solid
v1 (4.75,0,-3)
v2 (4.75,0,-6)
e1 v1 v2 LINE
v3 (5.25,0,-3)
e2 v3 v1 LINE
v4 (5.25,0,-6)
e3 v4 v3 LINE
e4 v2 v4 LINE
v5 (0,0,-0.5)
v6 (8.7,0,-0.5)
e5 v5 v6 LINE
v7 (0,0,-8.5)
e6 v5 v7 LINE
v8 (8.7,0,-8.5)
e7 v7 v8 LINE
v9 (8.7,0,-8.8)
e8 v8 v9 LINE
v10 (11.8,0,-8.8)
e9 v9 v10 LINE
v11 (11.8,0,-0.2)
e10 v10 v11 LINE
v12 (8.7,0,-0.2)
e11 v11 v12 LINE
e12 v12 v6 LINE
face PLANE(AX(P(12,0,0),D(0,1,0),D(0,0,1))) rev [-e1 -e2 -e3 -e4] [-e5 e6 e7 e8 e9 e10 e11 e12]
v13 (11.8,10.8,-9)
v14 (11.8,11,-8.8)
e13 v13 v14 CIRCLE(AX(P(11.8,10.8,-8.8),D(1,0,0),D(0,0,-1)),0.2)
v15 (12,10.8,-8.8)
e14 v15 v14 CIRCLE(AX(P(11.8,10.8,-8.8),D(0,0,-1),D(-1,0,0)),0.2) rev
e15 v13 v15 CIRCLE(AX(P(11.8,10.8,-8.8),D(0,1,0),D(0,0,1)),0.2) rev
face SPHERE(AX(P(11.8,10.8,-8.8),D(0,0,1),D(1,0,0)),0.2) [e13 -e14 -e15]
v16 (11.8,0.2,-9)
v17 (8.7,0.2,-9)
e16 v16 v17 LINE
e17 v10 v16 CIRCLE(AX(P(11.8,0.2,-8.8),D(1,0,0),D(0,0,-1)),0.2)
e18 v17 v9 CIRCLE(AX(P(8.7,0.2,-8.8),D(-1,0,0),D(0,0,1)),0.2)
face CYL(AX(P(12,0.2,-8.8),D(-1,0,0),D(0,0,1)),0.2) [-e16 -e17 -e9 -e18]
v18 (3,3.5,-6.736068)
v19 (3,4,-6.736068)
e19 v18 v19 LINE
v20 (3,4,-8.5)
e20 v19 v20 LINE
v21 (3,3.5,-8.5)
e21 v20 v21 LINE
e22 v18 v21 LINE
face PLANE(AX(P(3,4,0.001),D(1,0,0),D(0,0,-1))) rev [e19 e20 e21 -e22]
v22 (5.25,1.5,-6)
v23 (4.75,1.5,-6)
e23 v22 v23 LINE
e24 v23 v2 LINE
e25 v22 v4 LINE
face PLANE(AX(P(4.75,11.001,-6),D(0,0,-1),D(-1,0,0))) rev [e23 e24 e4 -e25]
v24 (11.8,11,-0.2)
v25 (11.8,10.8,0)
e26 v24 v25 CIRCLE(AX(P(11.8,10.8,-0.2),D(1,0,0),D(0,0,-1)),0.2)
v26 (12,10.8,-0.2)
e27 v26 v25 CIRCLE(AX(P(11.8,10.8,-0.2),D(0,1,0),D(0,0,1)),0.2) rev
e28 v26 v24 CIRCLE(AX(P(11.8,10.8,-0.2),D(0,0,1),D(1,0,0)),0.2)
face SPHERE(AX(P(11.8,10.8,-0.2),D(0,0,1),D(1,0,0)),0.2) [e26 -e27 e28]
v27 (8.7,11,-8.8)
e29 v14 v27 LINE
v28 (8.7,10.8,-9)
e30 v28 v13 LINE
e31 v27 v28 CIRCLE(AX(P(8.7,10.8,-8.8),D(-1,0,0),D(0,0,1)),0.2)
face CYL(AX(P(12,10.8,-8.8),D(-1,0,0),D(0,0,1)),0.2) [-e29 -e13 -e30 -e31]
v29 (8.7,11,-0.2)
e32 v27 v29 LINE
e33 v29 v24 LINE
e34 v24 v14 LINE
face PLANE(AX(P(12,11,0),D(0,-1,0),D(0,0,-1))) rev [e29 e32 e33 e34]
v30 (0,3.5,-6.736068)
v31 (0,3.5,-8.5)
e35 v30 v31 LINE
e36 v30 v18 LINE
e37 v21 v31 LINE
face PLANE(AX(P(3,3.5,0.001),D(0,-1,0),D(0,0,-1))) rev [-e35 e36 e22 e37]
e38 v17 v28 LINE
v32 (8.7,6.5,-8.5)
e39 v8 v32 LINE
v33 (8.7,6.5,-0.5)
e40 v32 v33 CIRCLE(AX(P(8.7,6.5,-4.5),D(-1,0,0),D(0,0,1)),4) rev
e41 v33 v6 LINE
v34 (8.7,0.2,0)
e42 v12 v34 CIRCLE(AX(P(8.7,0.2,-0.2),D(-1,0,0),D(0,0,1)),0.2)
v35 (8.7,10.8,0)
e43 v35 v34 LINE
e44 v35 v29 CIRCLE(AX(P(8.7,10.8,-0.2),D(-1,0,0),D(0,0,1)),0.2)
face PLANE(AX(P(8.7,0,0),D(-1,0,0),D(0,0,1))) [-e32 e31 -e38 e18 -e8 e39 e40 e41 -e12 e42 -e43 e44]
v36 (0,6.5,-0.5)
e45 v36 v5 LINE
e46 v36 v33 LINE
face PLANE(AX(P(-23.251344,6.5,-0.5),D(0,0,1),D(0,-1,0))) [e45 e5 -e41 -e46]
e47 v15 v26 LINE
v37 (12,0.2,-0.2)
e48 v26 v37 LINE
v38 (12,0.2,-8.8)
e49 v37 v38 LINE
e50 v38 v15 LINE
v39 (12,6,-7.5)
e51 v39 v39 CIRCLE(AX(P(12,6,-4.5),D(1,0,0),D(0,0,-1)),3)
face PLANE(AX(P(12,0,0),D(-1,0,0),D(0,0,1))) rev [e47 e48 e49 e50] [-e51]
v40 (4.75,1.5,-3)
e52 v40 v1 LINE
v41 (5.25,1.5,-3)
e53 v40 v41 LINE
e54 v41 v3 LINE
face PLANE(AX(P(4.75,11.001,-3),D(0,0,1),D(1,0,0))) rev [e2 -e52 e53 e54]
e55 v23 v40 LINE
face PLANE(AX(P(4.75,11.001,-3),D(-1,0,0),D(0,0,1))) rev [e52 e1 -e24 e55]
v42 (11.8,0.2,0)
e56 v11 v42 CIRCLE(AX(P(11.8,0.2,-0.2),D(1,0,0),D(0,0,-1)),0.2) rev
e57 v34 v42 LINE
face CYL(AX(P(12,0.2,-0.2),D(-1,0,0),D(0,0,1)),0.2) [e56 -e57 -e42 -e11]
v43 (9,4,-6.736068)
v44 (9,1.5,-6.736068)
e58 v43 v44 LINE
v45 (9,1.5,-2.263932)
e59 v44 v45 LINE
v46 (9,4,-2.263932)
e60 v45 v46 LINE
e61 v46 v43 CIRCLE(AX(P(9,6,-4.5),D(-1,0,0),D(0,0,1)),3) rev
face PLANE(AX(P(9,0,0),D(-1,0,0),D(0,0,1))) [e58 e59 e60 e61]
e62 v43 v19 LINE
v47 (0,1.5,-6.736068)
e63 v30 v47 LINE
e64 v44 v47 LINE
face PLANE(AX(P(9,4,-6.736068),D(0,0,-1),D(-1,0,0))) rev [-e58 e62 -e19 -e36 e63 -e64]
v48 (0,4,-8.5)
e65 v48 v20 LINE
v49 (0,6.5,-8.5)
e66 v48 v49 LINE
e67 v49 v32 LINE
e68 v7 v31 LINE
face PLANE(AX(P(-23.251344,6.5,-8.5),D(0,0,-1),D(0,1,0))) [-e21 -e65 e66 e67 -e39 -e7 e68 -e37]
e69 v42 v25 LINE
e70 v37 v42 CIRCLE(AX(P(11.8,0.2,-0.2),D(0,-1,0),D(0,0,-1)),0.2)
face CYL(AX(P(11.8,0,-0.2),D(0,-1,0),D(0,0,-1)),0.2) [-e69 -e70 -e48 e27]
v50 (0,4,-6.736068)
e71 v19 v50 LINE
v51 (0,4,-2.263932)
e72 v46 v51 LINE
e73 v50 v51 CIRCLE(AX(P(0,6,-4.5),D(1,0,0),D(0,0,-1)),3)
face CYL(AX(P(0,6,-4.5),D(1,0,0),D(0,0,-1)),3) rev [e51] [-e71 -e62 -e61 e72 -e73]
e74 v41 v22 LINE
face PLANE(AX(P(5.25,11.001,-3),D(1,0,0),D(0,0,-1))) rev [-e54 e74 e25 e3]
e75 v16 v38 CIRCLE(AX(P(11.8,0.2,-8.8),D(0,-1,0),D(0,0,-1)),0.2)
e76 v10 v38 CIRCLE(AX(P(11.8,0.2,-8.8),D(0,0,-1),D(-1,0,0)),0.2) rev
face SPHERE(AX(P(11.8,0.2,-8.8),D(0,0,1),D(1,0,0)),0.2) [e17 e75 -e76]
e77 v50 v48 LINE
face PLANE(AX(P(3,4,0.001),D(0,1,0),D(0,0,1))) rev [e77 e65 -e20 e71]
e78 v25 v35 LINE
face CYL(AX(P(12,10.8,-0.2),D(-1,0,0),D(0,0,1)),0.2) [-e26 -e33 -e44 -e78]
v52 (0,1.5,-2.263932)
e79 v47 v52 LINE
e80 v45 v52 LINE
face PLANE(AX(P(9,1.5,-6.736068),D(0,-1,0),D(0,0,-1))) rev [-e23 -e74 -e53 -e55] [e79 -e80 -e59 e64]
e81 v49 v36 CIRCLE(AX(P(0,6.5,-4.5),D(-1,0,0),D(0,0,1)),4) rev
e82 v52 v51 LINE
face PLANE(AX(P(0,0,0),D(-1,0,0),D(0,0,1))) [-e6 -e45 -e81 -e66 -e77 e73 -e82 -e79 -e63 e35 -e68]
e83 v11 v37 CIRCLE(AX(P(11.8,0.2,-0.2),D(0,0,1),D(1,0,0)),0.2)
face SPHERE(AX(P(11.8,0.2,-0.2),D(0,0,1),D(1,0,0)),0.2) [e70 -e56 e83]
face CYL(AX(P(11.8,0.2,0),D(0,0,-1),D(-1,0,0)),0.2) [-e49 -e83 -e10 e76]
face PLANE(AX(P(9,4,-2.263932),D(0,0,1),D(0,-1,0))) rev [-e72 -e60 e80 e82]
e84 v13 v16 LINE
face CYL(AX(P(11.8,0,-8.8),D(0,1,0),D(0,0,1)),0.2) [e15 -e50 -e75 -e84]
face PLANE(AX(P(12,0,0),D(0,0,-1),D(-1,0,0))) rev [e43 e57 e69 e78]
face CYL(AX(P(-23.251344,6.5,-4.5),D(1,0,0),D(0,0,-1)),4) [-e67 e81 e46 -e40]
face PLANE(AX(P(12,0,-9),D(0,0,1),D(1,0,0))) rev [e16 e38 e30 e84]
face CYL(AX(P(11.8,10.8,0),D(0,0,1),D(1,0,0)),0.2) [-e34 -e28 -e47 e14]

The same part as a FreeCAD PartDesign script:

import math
import FreeCAD as App
import Part
import Sketcher

V = App.Vector


def edges_at(feature, points):
    """Names of the edges that pass closest to the given points."""
    edges = feature.Shape.Edges
    near = lambda p: min(range(len(edges)), key=lambda i: edges[i].distToShape(Part.Vertex(*p))[0])
    return sorted({f"Edge{near(p) + 1}" for p in points})


def add_polygon(sketch, points):
    """Adds a closed chain of lines whose ends are joined by coincident constraints."""
    first, n = sketch.GeometryCount, len(points)
    for a, b in zip(points, points[1:] + points[:1]):
        sketch.addGeometry(Part.LineSegment(App.Vector(*a, 0), App.Vector(*b, 0)), False)
    for i in range(n):
        sketch.addConstraint(Sketcher.Constraint("Coincident", first + i, 2, first + (i + 1) % n, 1))

doc = App.newDocument("Part")
body = doc.addObject("PartDesign::Body", "Body")

# Sketch on YZ plane
sketch1 = doc.addObject("Sketcher::SketchObject", "Sketch")
body.addObject(sketch1)
sketch1.AttachmentSupport = (doc.YZ_Plane, [""])
sketch1.MapMode = "FlatFace"
add_polygon(sketch1, [(11, 0), (0, 0), (0, -9), (11, -9)])  # lines 0-3
sketch1.addConstraint(Sketcher.Constraint("Horizontal", 0))
sketch1.addConstraint(Sketcher.Constraint("Vertical", 1))
sketch1.addConstraint(Sketcher.Constraint("Horizontal", 2))
sketch1.addConstraint(Sketcher.Constraint("Vertical", 3))
sketch1.addConstraint(Sketcher.Constraint("Coincident", 0, 2, -1, 1))
sketch1.addConstraint(Sketcher.Constraint("DistanceX", 0, 2, 0, 1, 11.0))
sketch1.addConstraint(Sketcher.Constraint("DistanceY", 1, 2, 1, 1, 9.0))
pad1 = doc.addObject("PartDesign::Pad", "Pad")
body.addObject(pad1)
pad1.Profile = sketch1
pad1.Length = 12

# Sketch on YZ plane
sketch2 = doc.addObject("Sketcher::SketchObject", "Sketch001")
body.addObject(sketch2)
sketch2.AttachmentSupport = (doc.YZ_Plane, [""])
sketch2.MapMode = "FlatFace"
sketch2.addGeometry(Part.LineSegment(V(0, -8.5, 0), V(6.5, -8.5, 0)), False)
sketch2.addGeometry(Part.ArcOfCircle(Part.Circle(V(6.5, -4.5, 0), V(0, 0, 1), 4), math.radians(-90), math.radians(90)), False)
sketch2.addGeometry(Part.LineSegment(V(6.5, -0.5, 0), V(0, -0.5, 0)), False)
sketch2.addGeometry(Part.LineSegment(V(0, -0.5, 0), V(0, 0, 0)), False)
sketch2.addGeometry(Part.LineSegment(V(0, 0, 0), V(11, 0, 0)), False)
sketch2.addGeometry(Part.LineSegment(V(11, 0, 0), V(11, -9, 0)), False)
sketch2.addGeometry(Part.LineSegment(V(11, -9, 0), V(0, -9, 0)), False)
sketch2.addGeometry(Part.LineSegment(V(0, -9, 0), V(0, -8.5, 0)), False)
sketch2.addConstraint(Sketcher.Constraint("Tangent", 0, 2, 1, 1))
sketch2.addConstraint(Sketcher.Constraint("Tangent", 1, 2, 2, 1))
sketch2.addConstraint(Sketcher.Constraint("Coincident", 2, 2, 3, 1))
sketch2.addConstraint(Sketcher.Constraint("Coincident", 3, 2, 4, 1))
sketch2.addConstraint(Sketcher.Constraint("Coincident", 4, 2, 5, 1))
sketch2.addConstraint(Sketcher.Constraint("Coincident", 5, 2, 6, 1))
sketch2.addConstraint(Sketcher.Constraint("Coincident", 6, 2, 7, 1))
sketch2.addConstraint(Sketcher.Constraint("Coincident", 7, 2, 0, 1))
sketch2.addConstraint(Sketcher.Constraint("Horizontal", 0))
sketch2.addConstraint(Sketcher.Constraint("Horizontal", 2))
sketch2.addConstraint(Sketcher.Constraint("Vertical", 3))
sketch2.addConstraint(Sketcher.Constraint("Horizontal", 4))
sketch2.addConstraint(Sketcher.Constraint("Vertical", 5))
sketch2.addConstraint(Sketcher.Constraint("Horizontal", 6))
sketch2.addConstraint(Sketcher.Constraint("Vertical", 7))
sketch2.addConstraint(Sketcher.Constraint("Coincident", 3, 2, -1, 1))
sketch2.addConstraint(Sketcher.Constraint("PointOnObject", 6, 2, -2))
sketch2.addConstraint(Sketcher.Constraint("Equal", 3, 7))
sketch2.addConstraint(Sketcher.Constraint("Radius", 1, 4.0))
sketch2.addConstraint(Sketcher.Constraint("DistanceX", 4, 1, 4, 2, 11.0))
sketch2.addConstraint(Sketcher.Constraint("DistanceY", 5, 2, 5, 1, 9.0))
sketch2.addConstraint(Sketcher.Constraint("DistanceX", 0, 1, 0, 2, 6.5))
pocket1 = doc.addObject("PartDesign::Pocket", "Pocket")
body.addObject(pocket1)
pocket1.Profile = sketch2
pocket1.Type = "TwoLengths"
pocket1.Length = 1
pocket1.Length2 = 8.7

# Sketch on YZ plane
sketch3 = doc.addObject("Sketcher::SketchObject", "Sketch002")
body.addObject(sketch3)
sketch3.AttachmentSupport = (doc.YZ_Plane, [""])
sketch3.MapMode = "FlatFace"
sketch3.AttachmentOffset = App.Placement(V(0, 0, 12), App.Rotation())
sketch3.addGeometry(Part.Circle(V(6, -4.5, 0), V(0, 0, 1), 3), False)
sketch3.addConstraint(Sketcher.Constraint("Diameter", 0, 6.0))
sketch3.addConstraint(Sketcher.Constraint("DistanceX", -1, 1, 0, 3, 6.0))
sketch3.addConstraint(Sketcher.Constraint("DistanceY", 0, 3, -1, 1, 4.5))
pocket2 = doc.addObject("PartDesign::Pocket", "Pocket001")
body.addObject(pocket2)
pocket2.Profile = sketch3
pocket2.Type = "ThroughAll"

# Sketch on XZ plane
sketch4 = doc.addObject("Sketcher::SketchObject", "Sketch003")
body.addObject(sketch4)
sketch4.AttachmentSupport = (doc.XZ_Plane, [""])
sketch4.MapMode = "FlatFace"
add_polygon(sketch4, [(5.2, -6), (5.2, -3), (4.8, -3), (4.8, -6)])  # lines 0-3
sketch4.addConstraint(Sketcher.Constraint("Vertical", 0))
sketch4.addConstraint(Sketcher.Constraint("Horizontal", 1))
sketch4.addConstraint(Sketcher.Constraint("Vertical", 2))
sketch4.addConstraint(Sketcher.Constraint("Horizontal", 3))
sketch4.addConstraint(Sketcher.Constraint("DistanceY", 0, 1, 0, 2, 3.0))
sketch4.addConstraint(Sketcher.Constraint("DistanceX", 1, 2, 1, 1, 0.5))
sketch4.addConstraint(Sketcher.Constraint("DistanceY", 0, 2, -1, 1, 3.0))
sketch4.addConstraint(Sketcher.Constraint("DistanceX", -1, 1, 0, 2, 5.25))
pocket3 = doc.addObject("PartDesign::Pocket", "Pocket002")
body.addObject(pocket3)
pocket3.Profile = sketch4
pocket3.Type = "UpToFirst"
doc.recompute()

fillet = doc.addObject("PartDesign::Fillet", "Fillet")
body.addObject(fillet)
fillet.Base = (pocket3, edges_at(pocket3, [
    (12, 5.5, -9),
    (12, 11, -4.5),
    (12, 5.5, 0),
    (12, 0, -4.5),
    (10.35, 11, 0),
    (10.35, 11, -9),
    (10.35, 0, -9),
    (10.35, 0, 0),
]))
fillet.Radius = 0.2

# Sketch on XY plane
sketch5 = doc.addObject("Sketcher::SketchObject", "Sketch004")
body.addObject(sketch5)
sketch5.AttachmentSupport = (doc.XY_Plane, [""])
sketch5.MapMode = "FlatFace"
sketch5.AttachmentOffset = App.Placement(V(0, 0, -8.5), App.Rotation())
add_polygon(sketch5, [(3, 4), (3, 3.5), (0, 3.5), (0, 4)])  # lines 0-3
sketch5.addConstraint(Sketcher.Constraint("Vertical", 0))
sketch5.addConstraint(Sketcher.Constraint("Horizontal", 1))
sketch5.addConstraint(Sketcher.Constraint("Vertical", 2))
sketch5.addConstraint(Sketcher.Constraint("Horizontal", 3))
sketch5.addConstraint(Sketcher.Constraint("PointOnObject", 1, 2, -2))
sketch5.addConstraint(Sketcher.Constraint("DistanceX", 1, 2, 1, 1, 3.0))
sketch5.addConstraint(Sketcher.Constraint("DistanceY", 0, 2, 0, 1, 0.5))
sketch5.addConstraint(Sketcher.Constraint("DistanceY", -1, 1, 2, 2, 4.0))
pocket4 = doc.addObject("PartDesign::Pocket", "Pocket003")
body.addObject(pocket4)
pocket4.Profile = sketch5
pocket4.Type = "UpToFirst"
pocket4.Reversed = True

# Sketch on YZ plane
sketch6 = doc.addObject("Sketcher::SketchObject", "Sketch005")
body.addObject(sketch6)
sketch6.AttachmentSupport = (doc.YZ_Plane, [""])
sketch6.MapMode = "FlatFace"
add_polygon(sketch6, [(4, -6.7), (1.5, -6.7), (1.5, -2.3), (4, -2.3)])  # lines 0-3
sketch6.addConstraint(Sketcher.Constraint("Horizontal", 0))
sketch6.addConstraint(Sketcher.Constraint("Vertical", 1))
sketch6.addConstraint(Sketcher.Constraint("Horizontal", 2))
sketch6.addConstraint(Sketcher.Constraint("Vertical", 3))
sketch6.addConstraint(Sketcher.Constraint("DistanceX", 0, 2, 0, 1, 2.5))
sketch6.addConstraint(Sketcher.Constraint("DistanceX", -1, 1, 2, 2, 4.0))
sketch6.addConstraint(Sketcher.Constraint("DistanceY", 1, 1, 1, 2, 4.472136))
sketch6.addConstraint(Sketcher.Constraint("DistanceY", 0, 2, -1, 1, 6.736068))
pocket5 = doc.addObject("PartDesign::Pocket", "Pocket004")
body.addObject(pocket5)
pocket5.Profile = sketch6
pocket5.Length = 9
pocket5.Reversed = True

doc.recompute()
